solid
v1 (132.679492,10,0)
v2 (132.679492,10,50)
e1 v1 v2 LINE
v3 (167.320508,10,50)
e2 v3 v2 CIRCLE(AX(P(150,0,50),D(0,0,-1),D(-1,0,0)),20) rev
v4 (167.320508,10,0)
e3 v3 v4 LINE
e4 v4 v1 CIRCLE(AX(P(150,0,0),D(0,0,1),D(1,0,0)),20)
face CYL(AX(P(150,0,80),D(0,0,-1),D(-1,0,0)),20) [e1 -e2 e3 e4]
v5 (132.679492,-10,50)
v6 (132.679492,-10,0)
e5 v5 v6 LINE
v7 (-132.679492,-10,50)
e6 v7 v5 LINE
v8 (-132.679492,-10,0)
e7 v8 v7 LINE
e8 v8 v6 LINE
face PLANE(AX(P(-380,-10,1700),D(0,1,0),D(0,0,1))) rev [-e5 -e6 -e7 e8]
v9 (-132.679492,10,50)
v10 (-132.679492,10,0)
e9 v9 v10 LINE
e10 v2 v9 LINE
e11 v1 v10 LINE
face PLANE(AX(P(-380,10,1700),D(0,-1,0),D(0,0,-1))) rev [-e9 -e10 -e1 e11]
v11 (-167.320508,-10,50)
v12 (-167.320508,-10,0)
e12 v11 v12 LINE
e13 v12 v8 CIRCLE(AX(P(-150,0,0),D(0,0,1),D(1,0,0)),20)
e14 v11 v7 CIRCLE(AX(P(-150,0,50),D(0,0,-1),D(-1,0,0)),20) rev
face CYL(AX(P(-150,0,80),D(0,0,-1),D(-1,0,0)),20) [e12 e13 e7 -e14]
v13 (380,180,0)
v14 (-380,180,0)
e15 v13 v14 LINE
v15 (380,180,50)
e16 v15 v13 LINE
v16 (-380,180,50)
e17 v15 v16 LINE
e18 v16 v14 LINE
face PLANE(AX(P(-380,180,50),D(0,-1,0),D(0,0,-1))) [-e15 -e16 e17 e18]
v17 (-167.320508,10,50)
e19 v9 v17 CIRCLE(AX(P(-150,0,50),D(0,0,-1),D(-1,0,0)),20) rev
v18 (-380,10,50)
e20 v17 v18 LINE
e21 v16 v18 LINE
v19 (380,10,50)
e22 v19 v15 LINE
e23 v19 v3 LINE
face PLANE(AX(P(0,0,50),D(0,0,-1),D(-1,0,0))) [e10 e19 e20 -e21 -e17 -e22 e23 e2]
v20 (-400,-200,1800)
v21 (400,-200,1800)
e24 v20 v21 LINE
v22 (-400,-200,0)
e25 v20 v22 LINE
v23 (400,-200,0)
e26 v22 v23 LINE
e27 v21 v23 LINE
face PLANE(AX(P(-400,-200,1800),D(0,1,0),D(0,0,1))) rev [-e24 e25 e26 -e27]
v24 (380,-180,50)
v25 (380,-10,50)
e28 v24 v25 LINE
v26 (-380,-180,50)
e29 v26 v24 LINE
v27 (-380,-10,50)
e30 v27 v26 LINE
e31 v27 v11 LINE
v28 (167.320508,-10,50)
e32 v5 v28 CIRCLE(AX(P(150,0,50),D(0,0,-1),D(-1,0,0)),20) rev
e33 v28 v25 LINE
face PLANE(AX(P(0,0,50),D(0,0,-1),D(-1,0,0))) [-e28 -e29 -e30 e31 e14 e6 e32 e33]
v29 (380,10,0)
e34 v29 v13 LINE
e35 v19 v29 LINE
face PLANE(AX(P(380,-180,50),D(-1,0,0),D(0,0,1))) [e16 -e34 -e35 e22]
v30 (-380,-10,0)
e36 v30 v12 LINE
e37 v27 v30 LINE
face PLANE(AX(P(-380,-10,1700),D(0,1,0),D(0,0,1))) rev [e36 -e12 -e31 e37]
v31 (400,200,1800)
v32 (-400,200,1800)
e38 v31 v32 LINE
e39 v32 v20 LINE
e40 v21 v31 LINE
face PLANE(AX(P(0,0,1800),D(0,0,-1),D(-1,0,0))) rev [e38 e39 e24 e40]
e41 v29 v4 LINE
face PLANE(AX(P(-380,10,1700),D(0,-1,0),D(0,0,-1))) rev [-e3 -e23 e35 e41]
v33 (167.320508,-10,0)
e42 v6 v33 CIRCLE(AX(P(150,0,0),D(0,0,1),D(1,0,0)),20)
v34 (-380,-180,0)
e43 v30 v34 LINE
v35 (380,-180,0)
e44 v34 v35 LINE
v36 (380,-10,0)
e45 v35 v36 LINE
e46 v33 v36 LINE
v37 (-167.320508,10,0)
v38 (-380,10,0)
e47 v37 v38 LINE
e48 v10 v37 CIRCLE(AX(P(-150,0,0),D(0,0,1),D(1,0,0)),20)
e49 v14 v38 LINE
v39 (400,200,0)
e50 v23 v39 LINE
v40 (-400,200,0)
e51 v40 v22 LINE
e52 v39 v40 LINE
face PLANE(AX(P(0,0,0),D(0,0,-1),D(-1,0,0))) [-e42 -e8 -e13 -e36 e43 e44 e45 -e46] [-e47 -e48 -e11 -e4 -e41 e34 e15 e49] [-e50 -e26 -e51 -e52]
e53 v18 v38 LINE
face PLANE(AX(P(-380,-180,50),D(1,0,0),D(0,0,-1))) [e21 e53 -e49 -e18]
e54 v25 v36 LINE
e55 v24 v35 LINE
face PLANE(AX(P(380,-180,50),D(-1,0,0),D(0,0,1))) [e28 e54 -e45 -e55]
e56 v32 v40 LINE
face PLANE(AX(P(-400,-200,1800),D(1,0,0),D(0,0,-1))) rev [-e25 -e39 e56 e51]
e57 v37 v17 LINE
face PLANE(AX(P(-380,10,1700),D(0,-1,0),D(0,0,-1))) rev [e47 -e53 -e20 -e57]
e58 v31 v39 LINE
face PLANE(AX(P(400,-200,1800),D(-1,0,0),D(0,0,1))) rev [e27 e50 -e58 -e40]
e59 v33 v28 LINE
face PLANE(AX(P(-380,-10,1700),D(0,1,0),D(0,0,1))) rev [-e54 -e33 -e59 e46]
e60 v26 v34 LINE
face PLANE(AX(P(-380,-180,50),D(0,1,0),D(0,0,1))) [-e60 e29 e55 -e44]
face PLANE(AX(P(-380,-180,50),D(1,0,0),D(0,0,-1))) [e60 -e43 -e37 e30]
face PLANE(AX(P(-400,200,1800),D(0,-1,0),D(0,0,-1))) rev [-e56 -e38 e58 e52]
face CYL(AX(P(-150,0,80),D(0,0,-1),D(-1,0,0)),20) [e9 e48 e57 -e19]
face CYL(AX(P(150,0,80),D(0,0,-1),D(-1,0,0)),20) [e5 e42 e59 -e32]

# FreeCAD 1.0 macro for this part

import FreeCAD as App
import Part
import Sketcher


def add_polygon(sketch, points):
    """Adds a closed chain of lines whose ends are joined by coincident constraints."""
    first, n = sketch.GeometryCount, len(points)
    for a, b in zip(points, points[1:] + points[:1]):
        sketch.addGeometry(Part.LineSegment(App.Vector(*a, 0), App.Vector(*b, 0)), False)
    for i in range(n):
        sketch.addConstraint(Sketcher.Constraint("Coincident", first + i, 2, first + (i + 1) % n, 1))

doc = App.newDocument("Part")
params = doc.addObject("Spreadsheet::Sheet", "Params")
for row, (alias, value) in enumerate([
    ("sketch1_width", "800 mm"),
    ("sketch1_height", "400 mm"),
    ("pad1_length", "1800 mm"),
    ("sketch2_width", "760 mm"),
    ("sketch2_height", "360 mm"),
    ("pocket1_length", "50 mm"),
    ("sketch3_width", "380 mm"),
    ("sketch3_height", "20 mm"),
    ("pad2_length", "1700 mm"),
    ("sketch4_width", "380 mm"),
    ("sketch4_height", "20 mm"),
    ("pad3_length", "1700 mm"),
    ("sketch5_width", "760 mm"),
    ("sketch5_height", "20 mm"),
    ("pad4_length", "300 mm"),
    ("sketch6_diameter", "40 mm"),
    ("pad5_length", "80 mm"),
    ("sketch7_diameter", "40 mm"),
    ("pad6_length", "80 mm"),
], start=1):
    params.set(f"A{row}", alias)
    params.set(f"B{row}", "=" + value)
    params.setAlias(f"B{row}", alias)

body = doc.addObject("PartDesign::Body", "Body")

# Sketch on XY plane
sketch1 = body.newObject("Sketcher::SketchObject", "Sketch")
sketch1.AttachmentSupport = (doc.getObject("XY_Plane"), [""])
sketch1.MapMode = "FlatFace"
add_polygon(sketch1, [(-400, 200), (-400, -200), (400, -200), (400, 200)])  # lines 0-3
sketch1.addConstraint(Sketcher.Constraint("Vertical", 0))
sketch1.addConstraint(Sketcher.Constraint("Horizontal", 1))
sketch1.addConstraint(Sketcher.Constraint("Vertical", 2))
sketch1.addConstraint(Sketcher.Constraint("Horizontal", 3))
sketch1.addConstraint(Sketcher.Constraint("Symmetric", 0, 2, 2, 2, -1, 1))
sketch1.addConstraint(Sketcher.Constraint("DistanceX", 1, 1, 1, 2, 800.0))
sketch1.addConstraint(Sketcher.Constraint("DistanceY", 0, 2, 0, 1, 400.0))
sketch1.setExpression("Constraints[9]", "Params.sketch1_width")
sketch1.setExpression("Constraints[10]", "Params.sketch1_height")
pad1 = body.newObject("PartDesign::Pad", "Pad")
pad1.Profile = sketch1
pad1.setExpression("Length", "Params.pad1_length")

# Sketch on XY plane
sketch2 = body.newObject("Sketcher::SketchObject", "Sketch001")
sketch2.AttachmentSupport = (doc.getObject("XY_Plane"), [""])
sketch2.MapMode = "FlatFace"
add_polygon(sketch2, [(-380, 180), (-380, -180), (380, -180), (380, 180)])  # lines 0-3
sketch2.addConstraint(Sketcher.Constraint("Vertical", 0))
sketch2.addConstraint(Sketcher.Constraint("Horizontal", 1))
sketch2.addConstraint(Sketcher.Constraint("Vertical", 2))
sketch2.addConstraint(Sketcher.Constraint("Horizontal", 3))
sketch2.addConstraint(Sketcher.Constraint("Symmetric", 0, 2, 2, 2, -1, 1))
sketch2.addConstraint(Sketcher.Constraint("DistanceX", 1, 1, 1, 2, 760.0))
sketch2.addConstraint(Sketcher.Constraint("DistanceY", 0, 2, 0, 1, 360.0))
sketch2.setExpression("Constraints[9]", "Params.sketch2_width")
sketch2.setExpression("Constraints[10]", "Params.sketch2_height")
pocket1 = body.newObject("PartDesign::Pocket", "Pocket")
pocket1.Profile = sketch2
pocket1.setExpression("Length", "Params.pocket1_length")
pocket1.Reversed = True

# Sketch on XY plane
sketch3 = body.newObject("Sketcher::SketchObject", "Sketch002")
sketch3.AttachmentSupport = (doc.getObject("XY_Plane"), [""])
sketch3.MapMode = "FlatFace"
add_polygon(sketch3, [(-380, 10), (-380, -10), (0, -10), (0, 10)])  # lines 0-3
sketch3.addConstraint(Sketcher.Constraint("Vertical", 0))
sketch3.addConstraint(Sketcher.Constraint("Horizontal", 1))
sketch3.addConstraint(Sketcher.Constraint("Vertical", 2))
sketch3.addConstraint(Sketcher.Constraint("Horizontal", 3))
sketch3.addConstraint(Sketcher.Constraint("Symmetric", 1, 2, 2, 2, -1, 1))
sketch3.addConstraint(Sketcher.Constraint("DistanceX", 1, 1, 1, 2, 380.0))
sketch3.addConstraint(Sketcher.Constraint("DistanceY", 0, 2, 0, 1, 20.0))
sketch3.setExpression("Constraints[9]", "Params.sketch3_width")
sketch3.setExpression("Constraints[10]", "Params.sketch3_height")
pad2 = body.newObject("PartDesign::Pad", "Pad001")
pad2.Profile = sketch3
pad2.setExpression("Length", "Params.pad2_length")

# Sketch on XY plane
sketch4 = body.newObject("Sketcher::SketchObject", "Sketch003")
sketch4.AttachmentSupport = (doc.getObject("XY_Plane"), [""])
sketch4.MapMode = "FlatFace"
add_polygon(sketch4, [(0, 10), (0, -10), (380, -10), (380, 10)])  # lines 0-3
sketch4.addConstraint(Sketcher.Constraint("Vertical", 0))
sketch4.addConstraint(Sketcher.Constraint("Horizontal", 1))
sketch4.addConstraint(Sketcher.Constraint("Vertical", 2))
sketch4.addConstraint(Sketcher.Constraint("Horizontal", 3))
sketch4.addConstraint(Sketcher.Constraint("Symmetric", 0, 2, 3, 2, -1, 1))
sketch4.addConstraint(Sketcher.Constraint("DistanceX", 1, 1, 1, 2, 380.0))
sketch4.addConstraint(Sketcher.Constraint("DistanceY", 0, 2, 0, 1, 20.0))
sketch4.setExpression("Constraints[9]", "Params.sketch4_width")
sketch4.setExpression("Constraints[10]", "Params.sketch4_height")
pad3 = body.newObject("PartDesign::Pad", "Pad002")
pad3.Profile = sketch4
pad3.setExpression("Length", "Params.pad3_length")

# Sketch on XY plane
sketch5 = body.newObject("Sketcher::SketchObject", "Sketch004")
sketch5.AttachmentSupport = (doc.getObject("XY_Plane"), [""])
sketch5.MapMode = "FlatFace"
add_polygon(sketch5, [(-380, 10), (-380, -10), (380, -10), (380, 10)])  # lines 0-3
sketch5.addConstraint(Sketcher.Constraint("Vertical", 0))
sketch5.addConstraint(Sketcher.Constraint("Horizontal", 1))
sketch5.addConstraint(Sketcher.Constraint("Vertical", 2))
sketch5.addConstraint(Sketcher.Constraint("Horizontal", 3))
sketch5.addConstraint(Sketcher.Constraint("Symmetric", 0, 2, 2, 2, -1, 1))
sketch5.addConstraint(Sketcher.Constraint("DistanceX", 1, 1, 1, 2, 760.0))
sketch5.addConstraint(Sketcher.Constraint("DistanceY", 0, 2, 0, 1, 20.0))
sketch5.setExpression("Constraints[9]", "Params.sketch5_width")
sketch5.setExpression("Constraints[10]", "Params.sketch5_height")
pad4 = body.newObject("PartDesign::Pad", "Pad003")
pad4.Profile = sketch5
pad4.setExpression("Length", "Params.pad4_length")

# Sketch on XY plane
sketch6 = body.newObject("Sketcher::SketchObject", "Sketch005")
sketch6.AttachmentSupport = (doc.getObject("XY_Plane"), [""])
sketch6.MapMode = "FlatFace"
sketch6.addGeometry(Part.Circle(App.Vector(-150, 0, 0), App.Vector(0, 0, 1), 20), False)
sketch6.addConstraint(Sketcher.Constraint("PointOnObject", 0, 3, -1))
sketch6.addConstraint(Sketcher.Constraint("Diameter", 0, 40.0))
sketch6.addConstraint(Sketcher.Constraint("DistanceX", 0, 3, -1, 1, 150.0))
sketch6.setExpression("Constraints[1]", "Params.sketch6_diameter")
pad5 = body.newObject("PartDesign::Pad", "Pad004")
pad5.Profile = sketch6
pad5.setExpression("Length", "Params.pad5_length")

# Sketch on XY plane
sketch7 = body.newObject("Sketcher::SketchObject", "Sketch006")
sketch7.AttachmentSupport = (doc.getObject("XY_Plane"), [""])
sketch7.MapMode = "FlatFace"
sketch7.addGeometry(Part.Circle(App.Vector(150, 0, 0), App.Vector(0, 0, 1), 20), False)
sketch7.addConstraint(Sketcher.Constraint("PointOnObject", 0, 3, -1))
sketch7.addConstraint(Sketcher.Constraint("Diameter", 0, 40.0))
sketch7.addConstraint(Sketcher.Constraint("DistanceX", -1, 1, 0, 3, 150.0))
sketch7.setExpression("Constraints[1]", "Params.sketch7_diameter")
pad6 = body.newObject("PartDesign::Pad", "Pad005")
pad6.Profile = sketch7
pad6.setExpression("Length", "Params.pad6_length")

doc.recompute()
